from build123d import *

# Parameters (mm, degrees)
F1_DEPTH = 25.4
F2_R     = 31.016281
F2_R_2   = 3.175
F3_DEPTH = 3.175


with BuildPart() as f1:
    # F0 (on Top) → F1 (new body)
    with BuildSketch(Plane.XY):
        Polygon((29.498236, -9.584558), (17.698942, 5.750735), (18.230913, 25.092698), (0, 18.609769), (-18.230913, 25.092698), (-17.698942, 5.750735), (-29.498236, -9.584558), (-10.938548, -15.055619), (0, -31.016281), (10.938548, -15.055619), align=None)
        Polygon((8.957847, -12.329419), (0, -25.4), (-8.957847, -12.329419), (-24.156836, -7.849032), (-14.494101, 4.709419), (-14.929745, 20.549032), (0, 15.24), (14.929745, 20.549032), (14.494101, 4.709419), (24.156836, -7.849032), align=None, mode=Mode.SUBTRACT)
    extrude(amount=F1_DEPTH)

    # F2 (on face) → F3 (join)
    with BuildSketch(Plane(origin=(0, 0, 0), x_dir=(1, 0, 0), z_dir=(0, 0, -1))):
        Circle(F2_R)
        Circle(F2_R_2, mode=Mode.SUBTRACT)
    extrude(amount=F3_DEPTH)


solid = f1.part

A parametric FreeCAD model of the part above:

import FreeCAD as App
import Part
import Sketcher
from FreeCAD import Vector
Q = App.Units.Quantity


def add_polygon(sketch, points):
    """Adds a closed chain of lines whose ends are joined by coincident constraints."""
    first, n = sketch.GeometryCount, len(points)
    for a, b in zip(points, points[1:] + points[:1]):
        sketch.addGeometry(Part.LineSegment(App.Vector(*a, 0), App.Vector(*b, 0)), False)
    for i in range(n):
        sketch.addConstraint(Sketcher.Constraint("Coincident", first + i, 2, first + (i + 1) % n, 1))

doc = App.newDocument("Part")
params = doc.addObject("Spreadsheet::Sheet", "Params")
for row, (alias, value) in enumerate([
    ("pad1_length", "1 in"),
    ("sketch2_diameter", "0.25 in"),
    ("pad2_length", "0.125 in"),
], start=1):
    params.set(f"A{row}", alias)
    params.set(f"B{row}", "=" + value)
    params.setAlias(f"B{row}", alias)

body = doc.addObject("PartDesign::Body", "Body")

# Sketch on XY plane
sketch1 = body.newObject("Sketcher::SketchObject", "Sketch")
sketch1.AttachmentSupport = (doc.getObject("XY_Plane"), [""])
sketch1.MapMode = "FlatFace"
add_polygon(sketch1, [(29.498236, -9.584558), (17.698942, 5.750735), (18.230913, 25.092698), (0, 18.609769), (-18.230913, 25.092698), (-17.698942, 5.750735), (-29.498236, -9.584558), (-10.938548, -15.055619), (0, -31.016281), (10.938548, -15.055619)])  # lines 0-9
add_polygon(sketch1, [(24.156836, -7.849032), (8.957847, -12.329419), (0, -25.4), (-8.957847, -12.329419), (-24.156836, -7.849032), (-14.494101, 4.709419), (-14.929745, 20.549032), (0, 15.24), (14.929745, 20.549032), (14.494101, 4.709419)])  # lines 10-19
sketch1.addConstraint([
    Sketcher.Constraint("PointOnObject", 2, 2, -2),
    Sketcher.Constraint("PointOnObject", 7, 2, -2),
    Sketcher.Constraint("PointOnObject", 11, 2, -2),
    Sketcher.Constraint("PointOnObject", 16, 2, -2),
    Sketcher.Constraint("DistanceY", 11, 2, -1, 1, Q("1 in")),
    Sketcher.Constraint("DistanceY", -1, 1, 16, 2, Q("0.6 in")),
    Sketcher.Constraint("DistanceX", 14, 2, -1, 1, 14.494101),
    Sketcher.Constraint("DistanceX", -1, 1, 18, 2, 14.494101),
    Sketcher.Constraint("DistanceX", 10, 2, 8, 2, 1.980701),
    Sketcher.Constraint("DistanceY", 8, 2, 10, 2, 2.7262),
    Sketcher.Constraint("DistanceY", 6, 2, 10, 2, 2.7262),
    Sketcher.Constraint("DistanceX", 6, 2, 12, 2, 1.980701),
    Sketcher.Constraint("DistanceY", 6, 2, 12, 2, 2.7262),
    Sketcher.Constraint("DistanceX", 5, 2, 13, 2, 5.3414),
    Sketcher.Constraint("DistanceX", 19, 2, 9, 2, 5.3414),
    Sketcher.Constraint("Distance", 7, 19.349278),
    Sketcher.Constraint("Distance", 8, 19.349278),
    Sketcher.Constraint("DistanceX", -1, 1, 0, 2, 17.698942),
    Sketcher.Constraint("DistanceY", -1, 1, 2, 2, 18.609769),
    Sketcher.Constraint("DistanceX", 4, 2, -1, 1, 17.698942),
    Sketcher.Constraint("DistanceX", 6, 2, -1, 1, 10.938548),
    Sketcher.Constraint("DistanceY", 6, 2, -1, 1, 15.055619),
    Sketcher.Constraint("DistanceY", -1, 1, 14, 2, 4.709419),
    Sketcher.Constraint("DistanceY", -1, 1, 18, 2, 4.709419),
    Sketcher.Constraint("DistanceX", 0, 2, 1, 2, 0.531971),
    Sketcher.Constraint("DistanceY", 2, 2, 1, 2, 6.482929),
    Sketcher.Constraint("DistanceY", 2, 2, 3, 2, 6.482929),
    Sketcher.Constraint("DistanceX", 3, 2, 4, 2, 0.531971),
    Sketcher.Constraint("DistanceX", 5, 2, 1, 2, 47.729149),
    Sketcher.Constraint("DistanceY", 6, 2, 5, 2, 5.471061),
    Sketcher.Constraint("DistanceY", 8, 2, 9, 2, 5.471061),
    Sketcher.Constraint("DistanceX", 10, 2, 9, 2, 20.540389),
    Sketcher.Constraint("DistanceY", 13, 2, 14, 2, 12.558451),
    Sketcher.Constraint("DistanceX", 3, 2, 15, 2, 3.301168),
    Sketcher.Constraint("DistanceX", 17, 2, 1, 2, 3.301168),
    Sketcher.Constraint("DistanceY", 19, 2, 18, 2, 12.558451),
    Sketcher.Constraint("Distance", 0, 19.349278),
    Sketcher.Constraint("Distance", 4, 19.349277),
    Sketcher.Constraint("Distance", 15, 15.845603),
    Sketcher.Constraint("Distance", 17, 15.845602),
])
pad1 = body.newObject("PartDesign::Pad", "Pad")
pad1.Profile = sketch1
pad1.setExpression("Length", "Params.pad1_length")

# Sketch on XY plane
sketch2 = body.newObject("Sketcher::SketchObject", "Sketch001")
sketch2.AttachmentSupport = (doc.getObject("XY_Plane"), [""])
sketch2.MapMode = "FlatFace"
sketch2.addGeometry([
    Part.Circle(Vector(0, 0, 0), Vector(0, 0, 1), 31),
    Part.Circle(Vector(0, 0, 0), Vector(0, 0, 1), 3.2),
], False)
sketch2.addConstraint([
    Sketcher.Constraint("Coincident", 0, 3, -1, 1),
    Sketcher.Constraint("Coincident", 1, 3, -1, 1),
    Sketcher.Constraint("Diameter", 1, Q("0.25 in")),
    Sketcher.Constraint("Diameter", 0, 62.032562),
])
sketch2.setExpression("Constraints[2]", "Params.sketch2_diameter")
pad2 = body.newObject("PartDesign::Pad", "Pad001")
pad2.Profile = sketch2
pad2.setExpression("Length", "Params.pad2_length")
pad2.Reversed = True

doc.recompute()
